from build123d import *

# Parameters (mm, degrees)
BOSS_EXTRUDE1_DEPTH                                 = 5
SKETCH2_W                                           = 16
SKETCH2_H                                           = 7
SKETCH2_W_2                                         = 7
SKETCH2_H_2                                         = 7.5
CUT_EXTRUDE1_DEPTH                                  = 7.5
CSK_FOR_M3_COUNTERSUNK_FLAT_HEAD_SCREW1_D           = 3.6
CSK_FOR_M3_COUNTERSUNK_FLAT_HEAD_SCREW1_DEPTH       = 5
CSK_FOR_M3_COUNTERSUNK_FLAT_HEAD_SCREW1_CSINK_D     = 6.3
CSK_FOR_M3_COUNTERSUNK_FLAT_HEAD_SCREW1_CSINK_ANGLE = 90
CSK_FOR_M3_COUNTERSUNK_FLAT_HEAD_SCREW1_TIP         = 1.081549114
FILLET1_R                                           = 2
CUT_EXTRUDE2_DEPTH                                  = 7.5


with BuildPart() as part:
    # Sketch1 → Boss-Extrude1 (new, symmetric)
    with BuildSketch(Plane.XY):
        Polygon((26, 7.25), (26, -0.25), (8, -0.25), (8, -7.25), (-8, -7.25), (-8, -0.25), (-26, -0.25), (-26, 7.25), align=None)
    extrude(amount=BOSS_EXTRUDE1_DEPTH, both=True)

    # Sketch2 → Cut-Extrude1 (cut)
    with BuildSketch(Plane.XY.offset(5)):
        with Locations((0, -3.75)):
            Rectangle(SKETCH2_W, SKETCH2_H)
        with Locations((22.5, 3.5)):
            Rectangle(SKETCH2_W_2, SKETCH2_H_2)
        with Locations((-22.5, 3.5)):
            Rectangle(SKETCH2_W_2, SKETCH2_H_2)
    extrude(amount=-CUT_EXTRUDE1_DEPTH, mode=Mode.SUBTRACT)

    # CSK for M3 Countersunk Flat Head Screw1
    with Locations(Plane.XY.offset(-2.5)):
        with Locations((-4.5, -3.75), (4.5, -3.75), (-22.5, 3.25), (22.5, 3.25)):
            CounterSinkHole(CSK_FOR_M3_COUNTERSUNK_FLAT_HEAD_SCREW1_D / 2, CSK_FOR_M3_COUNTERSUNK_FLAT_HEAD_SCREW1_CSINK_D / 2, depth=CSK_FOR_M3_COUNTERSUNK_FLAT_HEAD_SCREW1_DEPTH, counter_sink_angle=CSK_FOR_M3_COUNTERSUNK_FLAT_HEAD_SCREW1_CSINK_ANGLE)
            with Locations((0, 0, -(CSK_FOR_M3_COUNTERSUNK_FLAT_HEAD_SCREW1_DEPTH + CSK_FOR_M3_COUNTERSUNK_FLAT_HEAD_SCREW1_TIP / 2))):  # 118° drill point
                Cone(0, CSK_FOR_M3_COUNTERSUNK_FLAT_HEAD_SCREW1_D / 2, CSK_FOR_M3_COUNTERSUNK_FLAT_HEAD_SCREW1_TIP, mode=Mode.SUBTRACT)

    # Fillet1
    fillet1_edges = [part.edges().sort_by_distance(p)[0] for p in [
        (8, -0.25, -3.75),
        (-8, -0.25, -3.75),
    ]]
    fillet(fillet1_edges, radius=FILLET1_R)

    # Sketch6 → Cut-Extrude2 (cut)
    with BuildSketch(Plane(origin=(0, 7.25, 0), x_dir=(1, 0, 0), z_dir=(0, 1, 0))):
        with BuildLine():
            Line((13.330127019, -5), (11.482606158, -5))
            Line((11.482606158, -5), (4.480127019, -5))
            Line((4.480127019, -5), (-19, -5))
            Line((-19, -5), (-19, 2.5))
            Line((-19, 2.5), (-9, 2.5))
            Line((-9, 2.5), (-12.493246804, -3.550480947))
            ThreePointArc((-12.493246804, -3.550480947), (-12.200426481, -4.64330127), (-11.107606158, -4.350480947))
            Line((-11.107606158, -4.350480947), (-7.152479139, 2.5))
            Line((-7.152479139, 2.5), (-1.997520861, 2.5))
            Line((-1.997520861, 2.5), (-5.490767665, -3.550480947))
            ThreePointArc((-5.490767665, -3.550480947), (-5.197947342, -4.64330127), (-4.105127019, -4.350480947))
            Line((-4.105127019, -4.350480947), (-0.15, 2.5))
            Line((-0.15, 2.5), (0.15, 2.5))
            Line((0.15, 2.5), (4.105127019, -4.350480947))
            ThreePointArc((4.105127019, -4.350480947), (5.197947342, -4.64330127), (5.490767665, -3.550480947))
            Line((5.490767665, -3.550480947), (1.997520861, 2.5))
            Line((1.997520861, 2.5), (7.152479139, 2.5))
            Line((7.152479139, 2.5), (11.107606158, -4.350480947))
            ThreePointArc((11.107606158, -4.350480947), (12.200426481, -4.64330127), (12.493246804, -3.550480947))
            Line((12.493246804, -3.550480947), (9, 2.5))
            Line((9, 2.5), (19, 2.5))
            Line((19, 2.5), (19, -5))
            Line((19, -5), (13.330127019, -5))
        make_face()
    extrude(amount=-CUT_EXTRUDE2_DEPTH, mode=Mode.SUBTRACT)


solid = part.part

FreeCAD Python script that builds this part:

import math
import FreeCAD as App
import Part
import Sketcher
from FreeCAD import Vector
Q = App.Units.Quantity


def edges_at(feature, points):
    """Names of the edges that pass closest to the given points."""
    edges = feature.Shape.Edges
    near = lambda p: min(range(len(edges)), key=lambda i: edges[i].distToShape(Part.Vertex(*p))[0])
    return sorted({f"Edge{near(p) + 1}" for p in points})

doc = App.newDocument("Part")
params = doc.addObject("Spreadsheet::Sheet", "Params")
for row, (alias, value) in enumerate([
    ("sketch1_width", "52 mm"),
    ("sketch1_width2", "18 mm"),
    ("sketch1_height", "7 mm"),
    ("sketch1_height2", "7.5 mm"),
    ("pad1_length", "10 mm"),
    ("sketch2_width", "16 mm"),
    ("sketch2_width2", "7 mm"),
    ("sketch2_height", "7.5 mm"),
    ("pocket1_length", "7.5 mm"),
    ("sketch3_diameter", "3.6 mm"),
    ("hole_diameter", "3.6 mm"),
    ("hole_depth", "5 mm"),
    ("hole_csink_diameter", "6.3 mm"),
    ("fillet_radius", "2 mm"),
    ("sketch4_radius", "0.8 mm"),
    ("sketch4_width", "38 mm"),
    ("sketch4_width2", "10 mm"),
    ("sketch4_width3", "0.3 mm"),
    ("sketch4_height", "7.5 mm"),
    ("pocket2_length", "7.5 mm"),
], start=1):
    params.set(f"A{row}", alias)
    params.set(f"B{row}", "=" + value)
    params.setAlias(f"B{row}", alias)

body = doc.addObject("PartDesign::Body", "Body")

# Sketch on XY plane
sketch1 = doc.addObject("Sketcher::SketchObject", "Sketch")
body.addObject(sketch1)
sketch1.AttachmentSupport = (doc.XY_Plane, [""])
sketch1.MapMode = "FlatFace"
sketch1.addGeometry([
    Part.LineSegment(Vector(26, 0, 0), Vector(26, 7, 0)),  # 0
    Part.LineSegment(Vector(26, 7, 0), Vector(-26, 7, 0)),  # 1
    Part.LineSegment(Vector(-26, 7, 0), Vector(-26, 0, 0)),  # 2
    Part.LineSegment(Vector(-26, 0, 0), Vector(-8, 0, 0)),  # 3
    Part.LineSegment(Vector(-8, 0, 0), Vector(-8, -7, 0)),  # 4
    Part.LineSegment(Vector(-8, -7, 0), Vector(8, -7, 0)),  # 5
    Part.LineSegment(Vector(8, -7, 0), Vector(8, 0, 0)),  # 6
    Part.LineSegment(Vector(8, 0, 0), Vector(26, 0, 0)),  # 7
], False)
sketch1.addConstraint([
    Sketcher.Constraint("Coincident", 0, 2, 1, 1),
    Sketcher.Constraint("Coincident", 1, 2, 2, 1),
    Sketcher.Constraint("Coincident", 2, 2, 3, 1),
    Sketcher.Constraint("Coincident", 3, 2, 4, 1),
    Sketcher.Constraint("Coincident", 4, 2, 5, 1),
    Sketcher.Constraint("Coincident", 5, 2, 6, 1),
    Sketcher.Constraint("Coincident", 6, 2, 7, 1),
    Sketcher.Constraint("Coincident", 7, 2, 0, 1),
    Sketcher.Constraint("Vertical", 0),
    Sketcher.Constraint("Horizontal", 1),
    Sketcher.Constraint("Vertical", 2),
    Sketcher.Constraint("Horizontal", 3),
    Sketcher.Constraint("Vertical", 4),
    Sketcher.Constraint("Horizontal", 5),
    Sketcher.Constraint("Vertical", 6),
    Sketcher.Constraint("Horizontal", 7),
    Sketcher.Constraint("Symmetric", 3, 2, 6, 2, -2),
    Sketcher.Constraint("Equal", 3, 7),
    Sketcher.Constraint("DistanceX", 1, 2, 1, 1, 52.0),
    Sketcher.Constraint("DistanceX", 3, 1, 3, 2, 18.0),
    Sketcher.Constraint("DistanceY", 4, 2, 4, 1, 7.0),
    Sketcher.Constraint("DistanceY", 0, 1, 0, 2, 7.5),
    Sketcher.Constraint("DistanceY", -1, 1, 0, 2, 7.25),
])
sketch1.setExpression("Constraints[18]", "Params.sketch1_width")
sketch1.setExpression("Constraints[19]", "Params.sketch1_width2")
sketch1.setExpression("Constraints[20]", "Params.sketch1_height")
sketch1.setExpression("Constraints[21]", "Params.sketch1_height2")
pad1 = doc.addObject("PartDesign::Pad", "Pad")
body.addObject(pad1)
pad1.Profile = sketch1
pad1.setExpression("Length", "Params.pad1_length")
pad1.Midplane = True

# Sketch on XY plane
sketch2 = doc.addObject("Sketcher::SketchObject", "Sketch001")
body.addObject(sketch2)
sketch2.AttachmentSupport = (doc.XY_Plane, [""])
sketch2.MapMode = "FlatFace"
sketch2.AttachmentOffset = App.Placement(Vector(0, 0, 5), App.Rotation())
sketch2.addGeometry([
    Part.LineSegment(Vector(-8, 0, 0), Vector(-8, -7, 0)),  # 0
    Part.LineSegment(Vector(-8, -7, 0), Vector(8, -7, 0)),  # 1
    Part.LineSegment(Vector(8, -7, 0), Vector(8, 0, 0)),  # 2
    Part.LineSegment(Vector(8, 0, 0), Vector(-8, 0, 0)),  # 3
    Part.LineSegment(Vector(19, 7, 0), Vector(19, 0, 0)),  # 4
    Part.LineSegment(Vector(19, 0, 0), Vector(26, 0, 0)),  # 5
    Part.LineSegment(Vector(26, 0, 0), Vector(26, 7, 0)),  # 6
    Part.LineSegment(Vector(26, 7, 0), Vector(19, 7, 0)),  # 7
    Part.LineSegment(Vector(-26, 7, 0), Vector(-26, 0, 0)),  # 8
    Part.LineSegment(Vector(-26, 0, 0), Vector(-19, 0, 0)),  # 9
    Part.LineSegment(Vector(-19, 0, 0), Vector(-19, 7, 0)),  # 10
    Part.LineSegment(Vector(-19, 7, 0), Vector(-26, 7, 0)),  # 11
], False)
sketch2.addConstraint([
    Sketcher.Constraint("Coincident", 0, 2, 1, 1),
    Sketcher.Constraint("Coincident", 1, 2, 2, 1),
    Sketcher.Constraint("Coincident", 2, 2, 3, 1),
    Sketcher.Constraint("Coincident", 3, 2, 0, 1),
    Sketcher.Constraint("Coincident", 4, 2, 5, 1),
    Sketcher.Constraint("Coincident", 5, 2, 6, 1),
    Sketcher.Constraint("Coincident", 6, 2, 7, 1),
    Sketcher.Constraint("Coincident", 7, 2, 4, 1),
    Sketcher.Constraint("Coincident", 8, 2, 9, 1),
    Sketcher.Constraint("Coincident", 9, 2, 10, 1),
    Sketcher.Constraint("Coincident", 10, 2, 11, 1),
    Sketcher.Constraint("Coincident", 11, 2, 8, 1),
    Sketcher.Constraint("Vertical", 0),
    Sketcher.Constraint("Horizontal", 1),
    Sketcher.Constraint("Vertical", 2),
    Sketcher.Constraint("Horizontal", 3),
    Sketcher.Constraint("Vertical", 4),
    Sketcher.Constraint("Horizontal", 5),
    Sketcher.Constraint("Vertical", 6),
    Sketcher.Constraint("Horizontal", 7),
    Sketcher.Constraint("Vertical", 8),
    Sketcher.Constraint("Horizontal", 9),
    Sketcher.Constraint("Vertical", 10),
    Sketcher.Constraint("Horizontal", 11),
    Sketcher.Constraint("Symmetric", 5, 2, 8, 2, -2),
    Sketcher.Constraint("Symmetric", 7, 2, 10, 2, -2),
    Sketcher.Constraint("Horizontal", 3, 2, 4, 2),
    Sketcher.Constraint("Equal", 11, 0),
    Sketcher.Constraint("DistanceX", 1, 1, 1, 2, 16.0),
    Sketcher.Constraint("DistanceX", 5, 1, 5, 2, 7.0),
    Sketcher.Constraint("DistanceY", 4, 2, 4, 1, 7.5),
    Sketcher.Constraint("DistanceX", 0, 2, -1, 1, 8.0),
    Sketcher.Constraint("DistanceX", -1, 1, 4, 2, 19.0),
    Sketcher.Constraint("DistanceY", 0, 2, -1, 1, 7.25),
])
sketch2.setExpression("Constraints[28]", "Params.sketch2_width")
sketch2.setExpression("Constraints[29]", "Params.sketch2_width2")
sketch2.setExpression("Constraints[30]", "Params.sketch2_height")
pocket1 = doc.addObject("PartDesign::Pocket", "Pocket")
body.addObject(pocket1)
pocket1.Profile = sketch2
pocket1.setExpression("Length", "Params.pocket1_length")

# Sketch on XY plane
sketch3 = doc.addObject("Sketcher::SketchObject", "Sketch002")
body.addObject(sketch3)
sketch3.AttachmentSupport = (doc.XY_Plane, [""])
sketch3.MapMode = "FlatFace"
sketch3.AttachmentOffset = App.Placement(Vector(0, 0, -2.5), App.Rotation())
sketch3.addGeometry([
    Part.Circle(Vector(-4.5, -3.8, 0), Vector(0, 0, 1), 1.8),
    Part.Circle(Vector(4.5, -3.8, 0), Vector(0, 0, 1), 1.8),
    Part.Circle(Vector(-22.5, 3.2, 0), Vector(0, 0, 1), 1.8),
    Part.Circle(Vector(22.5, 3.2, 0), Vector(0, 0, 1), 1.8),
], False)
sketch3.addConstraint([
    Sketcher.Constraint("Equal", 0, 1),
    Sketcher.Constraint("Equal", 1, 2),
    Sketcher.Constraint("Equal", 2, 3),
    Sketcher.Constraint("Symmetric", 0, 3, 1, 3, -2),
    Sketcher.Constraint("Symmetric", 2, 3, 3, 3, -2),
    Sketcher.Constraint("Diameter", 0, 3.6),
    Sketcher.Constraint("DistanceX", 0, 3, 1, 3, 9.0),
    Sketcher.Constraint("DistanceX", 2, 3, 0, 3, 18.0),
    Sketcher.Constraint("DistanceY", 0, 3, 2, 3, 7.0),
    Sketcher.Constraint("DistanceY", 0, 3, -1, 1, 3.75),
])
sketch3.setExpression("Constraints[5]", "Params.sketch3_diameter")
doc.recompute()
hole = doc.addObject("PartDesign::Hole", "Hole")
body.addObject(hole)
hole.Profile = sketch3
hole.ThreadType = "None"
hole.setExpression("Diameter", "Params.hole_diameter")
hole.DepthType = "Dimension"
hole.setExpression("Depth", "Params.hole_depth")
hole.DrillPoint = "Angled"
hole.DrillPointAngle = 118
hole.HoleCutType = "Countersink"
hole.setExpression("HoleCutDiameter", "Params.hole_csink_diameter")
hole.HoleCutCountersinkAngle = 90
doc.recompute()

fillet = doc.addObject("PartDesign::Fillet", "Fillet")
body.addObject(fillet)
fillet.Base = (hole, edges_at(hole, [(8, -0.25, -3.75), (-8, -0.25, -3.75)]))
fillet.setExpression("Radius", "Params.fillet_radius")

# Sketch on XZ plane
sketch4 = doc.addObject("Sketcher::SketchObject", "Sketch003")
body.addObject(sketch4)
sketch4.AttachmentSupport = (doc.XZ_Plane, [""])
sketch4.MapMode = "FlatFace"
sketch4.AttachmentOffset = App.Placement(Vector(0, 0, -7.25), App.Rotation())
sketch4.addGeometry([
    Part.LineSegment(Vector(-19, -2.5, 0), Vector(-19, 5, 0)),  # 0
    Part.LineSegment(Vector(-19, 5, 0), Vector(19, 5, 0)),  # 1
    Part.LineSegment(Vector(19, 5, 0), Vector(19, -2.5, 0)),  # 2
    Part.LineSegment(Vector(19, -2.5, 0), Vector(9, -2.5, 0)),  # 3
    Part.LineSegment(Vector(9, -2.5, 0), Vector(12.49, 3.55, 0)),  # 4
    Part.ArcOfCircle(Part.Circle(Vector(11.8, 3.95, 0), Vector(0, 0, 1), 0.8), math.radians(-30), math.radians(150)),  # 5
    Part.LineSegment(Vector(11.11, 4.35, 0), Vector(7.15, -2.5, 0)),  # 6
    Part.LineSegment(Vector(7.15, -2.5, 0), Vector(2, -2.5, 0)),  # 7
    Part.LineSegment(Vector(2, -2.5, 0), Vector(5.49, 3.55, 0)),  # 8
    Part.ArcOfCircle(Part.Circle(Vector(4.8, 3.95, 0), Vector(0, 0, 1), 0.8), math.radians(-30), math.radians(150)),  # 9
    Part.LineSegment(Vector(4.11, 4.35, 0), Vector(0.15, -2.5, 0)),  # 10
    Part.LineSegment(Vector(0.15, -2.5, 0), Vector(-0.15, -2.5, 0)),  # 11
    Part.LineSegment(Vector(-0.15, -2.5, 0), Vector(-4.11, 4.35, 0)),  # 12
    Part.ArcOfCircle(Part.Circle(Vector(-4.8, 3.95, 0), Vector(0, 0, 1), 0.8), math.radians(30), math.radians(210)),  # 13
    Part.LineSegment(Vector(-5.49, 3.55, 0), Vector(-2, -2.5, 0)),  # 14
    Part.LineSegment(Vector(-2, -2.5, 0), Vector(-7.15, -2.5, 0)),  # 15
    Part.LineSegment(Vector(-7.15, -2.5, 0), Vector(-11.11, 4.35, 0)),  # 16
    Part.ArcOfCircle(Part.Circle(Vector(-11.8, 3.95, 0), Vector(0, 0, 1), 0.8), math.radians(30), math.radians(210)),  # 17
    Part.LineSegment(Vector(-12.49, 3.55, 0), Vector(-9, -2.5, 0)),  # 18
    Part.LineSegment(Vector(-9, -2.5, 0), Vector(-19, -2.5, 0)),  # 19
], False)
sketch4.addConstraint([
    Sketcher.Constraint("Coincident", 0, 2, 1, 1),
    Sketcher.Constraint("Coincident", 1, 2, 2, 1),
    Sketcher.Constraint("Coincident", 2, 2, 3, 1),
    Sketcher.Constraint("Coincident", 3, 2, 4, 1),
    Sketcher.Constraint("Tangent", 4, 2, 5, 1),
    Sketcher.Constraint("Tangent", 5, 2, 6, 1),
    Sketcher.Constraint("Coincident", 6, 2, 7, 1),
    Sketcher.Constraint("Coincident", 7, 2, 8, 1),
    Sketcher.Constraint("Tangent", 8, 2, 9, 1),
    Sketcher.Constraint("Tangent", 9, 2, 10, 1),
    Sketcher.Constraint("Coincident", 10, 2, 11, 1),
    Sketcher.Constraint("Coincident", 11, 2, 12, 1),
    Sketcher.Constraint("Tangent", 12, 2, 13, 1),
    Sketcher.Constraint("Tangent", 13, 2, 14, 1),
    Sketcher.Constraint("Coincident", 14, 2, 15, 1),
    Sketcher.Constraint("Coincident", 15, 2, 16, 1),
    Sketcher.Constraint("Tangent", 16, 2, 17, 1),
    Sketcher.Constraint("Tangent", 17, 2, 18, 1),
    Sketcher.Constraint("Coincident", 18, 2, 19, 1),
    Sketcher.Constraint("Coincident", 19, 2, 0, 1),
    Sketcher.Constraint("Vertical", 0),
    Sketcher.Constraint("Horizontal", 1),
    Sketcher.Constraint("Vertical", 2),
    Sketcher.Constraint("Horizontal", 3),
    Sketcher.Constraint("Horizontal", 7),
    Sketcher.Constraint("Horizontal", 11),
    Sketcher.Constraint("Horizontal", 15),
    Sketcher.Constraint("Horizontal", 19),
    Sketcher.Constraint("Equal", 5, 9),
    Sketcher.Constraint("Equal", 9, 13),
    Sketcher.Constraint("Equal", 13, 17),
    Sketcher.Constraint("Symmetric", 9, 3, 13, 3, -2),
    Sketcher.Constraint("Symmetric", 5, 3, 17, 3, -2),
    Sketcher.Constraint("Symmetric", 7, 2, 14, 2, -2),
    Sketcher.Constraint("Symmetric", 3, 2, 18, 2, -2),
    Sketcher.Constraint("Parallel", 4, 6),
    Sketcher.Constraint("Parallel", 6, 8),
    Sketcher.Constraint("Parallel", 8, 10),
    Sketcher.Constraint("Parallel", 12, 14),
    Sketcher.Constraint("Parallel", 14, 16),
    Sketcher.Constraint("Horizontal", 5, 3, 9, 3),
    Sketcher.Constraint("Horizontal", 3, 2, 6, 2),
    Sketcher.Constraint("Horizontal", 7, 2, 10, 2),
    Sketcher.Constraint("Equal", 3, 19),
    Sketcher.Constraint("Radius", 5, 0.8),
    Sketcher.Constraint("DistanceX", 1, 1, 1, 2, 38.0),
    Sketcher.Constraint("DistanceX", 3, 2, 3, 1, 10.0),
    Sketcher.Constraint("Angle", 4, Q("60 deg")),
    Sketcher.Constraint("DistanceX", 11, 2, 11, 1, 0.3),
    Sketcher.Constraint("DistanceY", 0, 1, 0, 2, 7.5),
    Sketcher.Constraint("DistanceY", -1, 1, 0, 2, 5.0),
    Sketcher.Constraint("DistanceY", -1, 1, 5, 3, 3.950481),
])
sketch4.setExpression("Constraints[44]", "Params.sketch4_radius")
sketch4.setExpression("Constraints[45]", "Params.sketch4_width")
sketch4.setExpression("Constraints[46]", "Params.sketch4_width2")
sketch4.setExpression("Constraints[48]", "Params.sketch4_width3")
sketch4.setExpression("Constraints[49]", "Params.sketch4_height")
pocket2 = doc.addObject("PartDesign::Pocket", "Pocket001")
body.addObject(pocket2)
pocket2.Profile = sketch4
pocket2.setExpression("Length", "Params.pocket2_length")
pocket2.Reversed = True

doc.recompute()
